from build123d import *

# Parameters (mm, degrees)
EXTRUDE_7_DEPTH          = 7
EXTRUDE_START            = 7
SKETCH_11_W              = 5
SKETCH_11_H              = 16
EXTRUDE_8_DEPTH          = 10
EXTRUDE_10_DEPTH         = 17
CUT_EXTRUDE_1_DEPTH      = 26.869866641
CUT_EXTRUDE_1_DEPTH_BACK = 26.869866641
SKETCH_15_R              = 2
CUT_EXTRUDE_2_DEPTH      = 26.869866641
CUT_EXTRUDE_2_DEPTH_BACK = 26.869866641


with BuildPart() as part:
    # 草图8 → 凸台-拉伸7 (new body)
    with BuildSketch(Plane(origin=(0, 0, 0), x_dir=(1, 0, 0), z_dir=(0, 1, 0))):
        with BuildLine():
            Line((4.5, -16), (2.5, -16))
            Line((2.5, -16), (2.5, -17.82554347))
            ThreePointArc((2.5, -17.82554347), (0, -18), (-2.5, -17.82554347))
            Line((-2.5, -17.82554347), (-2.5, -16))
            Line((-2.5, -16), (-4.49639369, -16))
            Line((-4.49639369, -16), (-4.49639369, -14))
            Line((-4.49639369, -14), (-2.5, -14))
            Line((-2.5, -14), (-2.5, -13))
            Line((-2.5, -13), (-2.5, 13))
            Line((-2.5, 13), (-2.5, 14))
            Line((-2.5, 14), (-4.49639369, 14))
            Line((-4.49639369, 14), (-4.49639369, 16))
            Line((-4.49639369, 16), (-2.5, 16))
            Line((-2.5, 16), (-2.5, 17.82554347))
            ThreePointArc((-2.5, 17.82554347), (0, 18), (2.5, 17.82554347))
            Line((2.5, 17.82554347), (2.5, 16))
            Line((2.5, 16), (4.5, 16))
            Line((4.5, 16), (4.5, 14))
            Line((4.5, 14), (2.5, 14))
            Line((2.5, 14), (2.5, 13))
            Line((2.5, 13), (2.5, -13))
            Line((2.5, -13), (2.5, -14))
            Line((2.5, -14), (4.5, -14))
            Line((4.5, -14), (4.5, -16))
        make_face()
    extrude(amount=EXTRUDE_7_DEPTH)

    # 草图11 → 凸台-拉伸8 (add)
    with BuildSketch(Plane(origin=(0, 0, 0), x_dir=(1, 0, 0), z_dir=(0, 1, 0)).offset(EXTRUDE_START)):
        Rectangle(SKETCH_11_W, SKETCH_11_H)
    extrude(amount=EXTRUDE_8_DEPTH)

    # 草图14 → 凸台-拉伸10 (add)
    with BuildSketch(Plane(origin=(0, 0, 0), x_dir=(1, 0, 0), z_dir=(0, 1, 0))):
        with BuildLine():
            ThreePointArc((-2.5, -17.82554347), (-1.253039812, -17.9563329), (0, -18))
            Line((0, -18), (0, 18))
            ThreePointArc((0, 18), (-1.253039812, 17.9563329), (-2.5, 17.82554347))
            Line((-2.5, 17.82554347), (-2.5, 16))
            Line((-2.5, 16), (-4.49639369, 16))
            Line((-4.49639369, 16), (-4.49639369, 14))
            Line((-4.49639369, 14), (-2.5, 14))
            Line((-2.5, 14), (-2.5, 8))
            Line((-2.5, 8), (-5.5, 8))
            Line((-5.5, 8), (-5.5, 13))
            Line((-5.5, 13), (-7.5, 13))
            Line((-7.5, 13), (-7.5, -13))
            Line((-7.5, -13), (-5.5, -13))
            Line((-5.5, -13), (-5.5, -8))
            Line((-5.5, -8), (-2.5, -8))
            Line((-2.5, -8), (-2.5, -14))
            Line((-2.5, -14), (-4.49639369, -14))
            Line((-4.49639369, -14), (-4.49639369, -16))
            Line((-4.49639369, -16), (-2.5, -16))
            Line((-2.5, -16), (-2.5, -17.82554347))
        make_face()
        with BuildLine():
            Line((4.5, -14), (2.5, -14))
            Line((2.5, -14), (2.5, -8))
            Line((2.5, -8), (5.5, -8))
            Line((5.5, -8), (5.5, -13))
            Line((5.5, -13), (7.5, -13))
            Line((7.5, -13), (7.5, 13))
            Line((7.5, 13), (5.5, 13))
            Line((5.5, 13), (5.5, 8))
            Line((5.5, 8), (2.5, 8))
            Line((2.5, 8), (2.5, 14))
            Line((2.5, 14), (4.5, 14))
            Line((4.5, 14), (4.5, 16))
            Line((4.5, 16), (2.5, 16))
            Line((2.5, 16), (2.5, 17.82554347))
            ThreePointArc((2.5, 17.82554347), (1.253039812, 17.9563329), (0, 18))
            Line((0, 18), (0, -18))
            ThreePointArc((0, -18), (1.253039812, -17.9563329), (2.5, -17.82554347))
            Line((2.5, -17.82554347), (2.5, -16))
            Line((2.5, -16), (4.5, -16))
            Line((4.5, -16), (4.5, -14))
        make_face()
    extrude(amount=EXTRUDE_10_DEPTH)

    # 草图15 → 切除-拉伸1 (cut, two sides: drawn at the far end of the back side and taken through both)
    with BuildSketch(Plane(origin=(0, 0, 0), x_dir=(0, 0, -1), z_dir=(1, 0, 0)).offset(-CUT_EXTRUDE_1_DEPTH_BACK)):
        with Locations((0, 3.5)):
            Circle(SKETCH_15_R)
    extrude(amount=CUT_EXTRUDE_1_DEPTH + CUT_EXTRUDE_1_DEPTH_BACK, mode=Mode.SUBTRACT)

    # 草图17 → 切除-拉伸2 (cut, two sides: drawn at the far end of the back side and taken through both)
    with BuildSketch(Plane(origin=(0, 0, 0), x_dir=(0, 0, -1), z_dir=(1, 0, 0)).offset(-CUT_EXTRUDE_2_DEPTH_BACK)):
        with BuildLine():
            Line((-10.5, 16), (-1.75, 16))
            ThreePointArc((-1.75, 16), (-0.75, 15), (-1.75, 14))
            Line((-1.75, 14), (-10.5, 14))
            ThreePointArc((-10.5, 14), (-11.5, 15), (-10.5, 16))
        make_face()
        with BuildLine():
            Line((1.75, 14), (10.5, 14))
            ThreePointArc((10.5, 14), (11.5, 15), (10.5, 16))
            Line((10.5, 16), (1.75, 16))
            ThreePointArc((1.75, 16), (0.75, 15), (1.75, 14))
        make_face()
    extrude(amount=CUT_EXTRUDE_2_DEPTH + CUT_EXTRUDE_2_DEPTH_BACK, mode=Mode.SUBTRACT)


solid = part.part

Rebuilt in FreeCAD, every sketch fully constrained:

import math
import FreeCAD as App
import Part
import Sketcher

V = App.Vector
Q = App.Units.Quantity

doc = App.newDocument("Part")
params = doc.addObject("Spreadsheet::Sheet", "Params")
for row, (alias, value) in enumerate([
    ("sketch1_radius", "18 mm"),
    ("sketch1_width", "2 mm"),
    ("sketch1_height", "28 mm"),
    ("pad1_length", "7 mm"),
    ("sketch2_width", "5 mm"),
    ("sketch2_height", "16 mm"),
    ("pad2_length", "10 mm"),
    ("sketch3_radius", "18 mm"),
    ("sketch3_width", "2 mm"),
    ("sketch3_width2", "3 mm"),
    ("sketch3_height", "6 mm"),
    ("sketch3_height2", "5 mm"),
    ("pad3_length", "17 mm"),
    ("sketch4_diameter", "4 mm"),
    ("sketch5_radius", "1 mm"),
    ("sketch5_height", "8.75 mm"),
], start=1):
    params.set(f"A{row}", alias)
    params.set(f"B{row}", "=" + value)
    params.setAlias(f"B{row}", alias)

body = doc.addObject("PartDesign::Body", "Body")

sketch1 = body.newObject("Sketcher::SketchObject", "Sketch")
sketch1.AttachmentSupport = (doc.getObject("XZ_Plane"), [""])
sketch1.MapMode = "FlatFace"
sketch1.addGeometry([
    Part.LineSegment(V(2.5, 16, 0), V(4.5, 16, 0)),
    Part.LineSegment(V(4.5, 16, 0), V(4.5, 14, 0)),
    Part.LineSegment(V(4.5, 14, 0), V(2.5, 14, 0)),
    Part.LineSegment(V(2.5, 14, 0), V(2.5, -14, 0)),
    Part.LineSegment(V(2.5, -14, 0), V(4.5, -14, 0)),
    Part.LineSegment(V(4.5, -14, 0), V(4.5, -16, 0)),
    Part.LineSegment(V(4.5, -16, 0), V(2.5, -16, 0)),
    Part.LineSegment(V(2.5, -16, 0), V(2.5, -17.825543, 0)),
    Part.ArcOfCircle(Part.Circle(V(0, 0, 0), V(0, 0, 1), 18), math.radians(-97.983556), math.radians(-82.016444)),
    Part.LineSegment(V(-2.5, -17.825543, 0), V(-2.5, -16, 0)),
    Part.LineSegment(V(-2.5, -16, 0), V(-4.496394, -16, 0)),
    Part.LineSegment(V(-4.496394, -16, 0), V(-4.496394, -14, 0)),
    Part.LineSegment(V(-4.496394, -14, 0), V(-2.5, -14, 0)),
    Part.LineSegment(V(-2.5, -14, 0), V(-2.5, 14, 0)),
    Part.LineSegment(V(-2.5, 14, 0), V(-4.496394, 14, 0)),
    Part.LineSegment(V(-4.496394, 14, 0), V(-4.496394, 16, 0)),
    Part.LineSegment(V(-4.496394, 16, 0), V(-2.5, 16, 0)),
    Part.LineSegment(V(-2.5, 16, 0), V(-2.5, 17.825543, 0)),
    Part.ArcOfCircle(Part.Circle(V(0, 0, 0), V(0, 0, 1), 18), math.radians(82.016444), math.radians(97.983556)),
    Part.LineSegment(V(2.5, 17.825543, 0), V(2.5, 16, 0)),
], False)
sketch1.addConstraint([
    Sketcher.Constraint("Coincident", 0, 2, 1, 1),
    Sketcher.Constraint("Coincident", 1, 2, 2, 1),
    Sketcher.Constraint("Coincident", 2, 2, 3, 1),
    Sketcher.Constraint("Coincident", 3, 2, 4, 1),
    Sketcher.Constraint("Coincident", 4, 2, 5, 1),
    Sketcher.Constraint("Coincident", 5, 2, 6, 1),
    Sketcher.Constraint("Coincident", 6, 2, 7, 1),
    Sketcher.Constraint("Coincident", 7, 2, 8, 2),
    Sketcher.Constraint("Coincident", 8, 1, 9, 1),
    Sketcher.Constraint("Coincident", 9, 2, 10, 1),
    Sketcher.Constraint("Coincident", 10, 2, 11, 1),
    Sketcher.Constraint("Coincident", 11, 2, 12, 1),
    Sketcher.Constraint("Coincident", 12, 2, 13, 1),
    Sketcher.Constraint("Coincident", 13, 2, 14, 1),
    Sketcher.Constraint("Coincident", 14, 2, 15, 1),
    Sketcher.Constraint("Coincident", 15, 2, 16, 1),
    Sketcher.Constraint("Coincident", 16, 2, 17, 1),
    Sketcher.Constraint("Coincident", 17, 2, 18, 2),
    Sketcher.Constraint("Coincident", 18, 1, 19, 1),
    Sketcher.Constraint("Coincident", 19, 2, 0, 1),
    Sketcher.Constraint("Horizontal", 0),
    Sketcher.Constraint("Vertical", 1),
    Sketcher.Constraint("Horizontal", 2),
    Sketcher.Constraint("Vertical", 3),
    Sketcher.Constraint("Horizontal", 4),
    Sketcher.Constraint("Vertical", 5),
    Sketcher.Constraint("Horizontal", 6),
    Sketcher.Constraint("Vertical", 7),
    Sketcher.Constraint("Vertical", 9),
    Sketcher.Constraint("Horizontal", 10),
    Sketcher.Constraint("Vertical", 11),
    Sketcher.Constraint("Horizontal", 12),
    Sketcher.Constraint("Vertical", 13),
    Sketcher.Constraint("Horizontal", 14),
    Sketcher.Constraint("Vertical", 15),
    Sketcher.Constraint("Horizontal", 16),
    Sketcher.Constraint("Vertical", 17),
    Sketcher.Constraint("Vertical", 19),
    Sketcher.Constraint("Coincident", 8, 3, -1, 1),
    Sketcher.Constraint("Coincident", 18, 3, -1, 1),
    Sketcher.Constraint("Equal", 8, 18),
    Sketcher.Constraint("Symmetric", 2, 2, 12, 2, -1, 1),
    Sketcher.Constraint("Symmetric", 6, 2, 16, 2, -1, 1),
    Sketcher.Constraint("Symmetric", 9, 2, 19, 2, -1, 1),
    Sketcher.Constraint("Symmetric", 6, 2, 9, 2, -2),
    Sketcher.Constraint("Symmetric", 1, 2, 4, 2, -1),
    Sketcher.Constraint("Symmetric", 11, 2, 14, 2, -1),
    Sketcher.Constraint("Vertical", 3, 2, 6, 2),
    Sketcher.Constraint("Equal", 6, 1),
    Sketcher.Constraint("Radius", 8, Q("18 mm")),
    Sketcher.Constraint("DistanceX", 0, 1, 0, 2, Q("2 mm")),
    Sketcher.Constraint("DistanceY", 3, 2, 3, 1, Q("28 mm")),
    Sketcher.Constraint("DistanceX", 8, 1, 7, 2, Q("5 mm")),
    Sketcher.Constraint("DistanceX", 10, 2, 10, 1, Q("1.996394 mm")),
])
sketch1.setExpression("Constraints[49]", "Params.sketch1_radius")
sketch1.setExpression("Constraints[50]", "Params.sketch1_width")
sketch1.setExpression("Constraints[51]", "Params.sketch1_height")
pad1 = body.newObject("PartDesign::Pad", "Pad")
pad1.Profile = sketch1
pad1.setExpression("Length", "Params.pad1_length")
pad1.Reversed = True

sketch2 = body.newObject("Sketcher::SketchObject", "Sketch001")
sketch2.AttachmentSupport = (doc.getObject("XZ_Plane"), [""])
sketch2.MapMode = "FlatFace"
sketch2.AttachmentOffset = App.Placement(V(0, 0, -7), App.Rotation())
sketch2.addGeometry([
    Part.LineSegment(V(-2.5, -8, 0), V(-2.5, 8, 0)),
    Part.LineSegment(V(-2.5, 8, 0), V(2.5, 8, 0)),
    Part.LineSegment(V(2.5, 8, 0), V(2.5, -8, 0)),
    Part.LineSegment(V(2.5, -8, 0), V(-2.5, -8, 0)),
], False)
sketch2.addConstraint([
    Sketcher.Constraint("Coincident", 0, 2, 1, 1),
    Sketcher.Constraint("Coincident", 1, 2, 2, 1),
    Sketcher.Constraint("Coincident", 2, 2, 3, 1),
    Sketcher.Constraint("Coincident", 3, 2, 0, 1),
    Sketcher.Constraint("Vertical", 0),
    Sketcher.Constraint("Horizontal", 1),
    Sketcher.Constraint("Vertical", 2),
    Sketcher.Constraint("Horizontal", 3),
    Sketcher.Constraint("Symmetric", 0, 2, 2, 2, -1, 1),
    Sketcher.Constraint("DistanceX", 1, 1, 1, 2, Q("5 mm")),
    Sketcher.Constraint("DistanceY", 0, 1, 0, 2, Q("16 mm")),
])
sketch2.setExpression("Constraints[9]", "Params.sketch2_width")
sketch2.setExpression("Constraints[10]", "Params.sketch2_height")
pad2 = body.newObject("PartDesign::Pad", "Pad001")
pad2.Profile = sketch2
pad2.setExpression("Length", "Params.pad2_length")
pad2.Reversed = True

sketch3 = body.newObject("Sketcher::SketchObject", "Sketch002")
sketch3.AttachmentSupport = (doc.getObject("XZ_Plane"), [""])
sketch3.MapMode = "FlatFace"
sketch3.addGeometry([
    Part.ArcOfCircle(Part.Circle(V(0, 0, 0), V(0, 0, 1), 18), math.radians(90), math.radians(97.983556)),
    Part.ArcOfCircle(Part.Circle(V(0, 0, 0), V(0, 0, 1), 18), math.radians(82.016444), math.radians(90)),
    Part.LineSegment(V(2.5, 17.825543, 0), V(2.5, 16, 0)),
    Part.LineSegment(V(2.5, 16, 0), V(4.5, 16, 0)),
    Part.LineSegment(V(4.5, 16, 0), V(4.5, 14, 0)),
    Part.LineSegment(V(4.5, 14, 0), V(2.5, 14, 0)),
    Part.LineSegment(V(2.5, 14, 0), V(2.5, 8, 0)),
    Part.LineSegment(V(2.5, 8, 0), V(5.5, 8, 0)),
    Part.LineSegment(V(5.5, 8, 0), V(5.5, 13, 0)),
    Part.LineSegment(V(5.5, 13, 0), V(7.5, 13, 0)),
    Part.LineSegment(V(7.5, 13, 0), V(7.5, -13, 0)),
    Part.LineSegment(V(7.5, -13, 0), V(5.5, -13, 0)),
    Part.LineSegment(V(5.5, -13, 0), V(5.5, -8, 0)),
    Part.LineSegment(V(5.5, -8, 0), V(2.5, -8, 0)),
    Part.LineSegment(V(2.5, -8, 0), V(2.5, -14, 0)),
    Part.LineSegment(V(2.5, -14, 0), V(4.5, -14, 0)),
    Part.LineSegment(V(4.5, -14, 0), V(4.5, -16, 0)),
    Part.LineSegment(V(4.5, -16, 0), V(2.5, -16, 0)),
    Part.LineSegment(V(2.5, -16, 0), V(2.5, -17.825543, 0)),
    Part.ArcOfCircle(Part.Circle(V(0, 0, 0), V(0, 0, 1), 18), math.radians(-90), math.radians(-82.016444)),
    Part.ArcOfCircle(Part.Circle(V(0, 0, 0), V(0, 0, 1), 18), math.radians(-97.983556), math.radians(-90)),
    Part.LineSegment(V(-2.5, -17.825543, 0), V(-2.5, -16, 0)),
    Part.LineSegment(V(-2.5, -16, 0), V(-4.496394, -16, 0)),
    Part.LineSegment(V(-4.496394, -16, 0), V(-4.496394, -14, 0)),
    Part.LineSegment(V(-4.496394, -14, 0), V(-2.5, -14, 0)),
    Part.LineSegment(V(-2.5, -14, 0), V(-2.5, -8, 0)),
    Part.LineSegment(V(-2.5, -8, 0), V(-5.5, -8, 0)),
    Part.LineSegment(V(-5.5, -8, 0), V(-5.5, -13, 0)),
    Part.LineSegment(V(-5.5, -13, 0), V(-7.5, -13, 0)),
    Part.LineSegment(V(-7.5, -13, 0), V(-7.5, 13, 0)),
    Part.LineSegment(V(-7.5, 13, 0), V(-5.5, 13, 0)),
    Part.LineSegment(V(-5.5, 13, 0), V(-5.5, 8, 0)),
    Part.LineSegment(V(-5.5, 8, 0), V(-2.5, 8, 0)),
    Part.LineSegment(V(-2.5, 8, 0), V(-2.5, 14, 0)),
    Part.LineSegment(V(-2.5, 14, 0), V(-4.496394, 14, 0)),
    Part.LineSegment(V(-4.496394, 14, 0), V(-4.496394, 16, 0)),
    Part.LineSegment(V(-4.496394, 16, 0), V(-2.5, 16, 0)),
    Part.LineSegment(V(-2.5, 16, 0), V(-2.5, 17.825543, 0)),
], False)
sketch3.addConstraint([
    Sketcher.Constraint("Tangent", 0, 1, 1, 2),
    Sketcher.Constraint("Coincident", 1, 1, 2, 1),
    Sketcher.Constraint("Coincident", 2, 2, 3, 1),
    Sketcher.Constraint("Coincident", 3, 2, 4, 1),
    Sketcher.Constraint("Coincident", 4, 2, 5, 1),
    Sketcher.Constraint("Coincident", 5, 2, 6, 1),
    Sketcher.Constraint("Coincident", 6, 2, 7, 1),
    Sketcher.Constraint("Coincident", 7, 2, 8, 1),
    Sketcher.Constraint("Coincident", 8, 2, 9, 1),
    Sketcher.Constraint("Coincident", 9, 2, 10, 1),
    Sketcher.Constraint("Coincident", 10, 2, 11, 1),
    Sketcher.Constraint("Coincident", 11, 2, 12, 1),
    Sketcher.Constraint("Coincident", 12, 2, 13, 1),
    Sketcher.Constraint("Coincident", 13, 2, 14, 1),
    Sketcher.Constraint("Coincident", 14, 2, 15, 1),
    Sketcher.Constraint("Coincident", 15, 2, 16, 1),
    Sketcher.Constraint("Coincident", 16, 2, 17, 1),
    Sketcher.Constraint("Coincident", 17, 2, 18, 1),
    Sketcher.Constraint("Coincident", 18, 2, 19, 2),
    Sketcher.Constraint("Tangent", 19, 1, 20, 2),
    Sketcher.Constraint("Coincident", 20, 1, 21, 1),
    Sketcher.Constraint("Coincident", 21, 2, 22, 1),
    Sketcher.Constraint("Coincident", 22, 2, 23, 1),
    Sketcher.Constraint("Coincident", 23, 2, 24, 1),
    Sketcher.Constraint("Coincident", 24, 2, 25, 1),
    Sketcher.Constraint("Coincident", 25, 2, 26, 1),
    Sketcher.Constraint("Coincident", 26, 2, 27, 1),
    Sketcher.Constraint("Coincident", 27, 2, 28, 1),
    Sketcher.Constraint("Coincident", 28, 2, 29, 1),
    Sketcher.Constraint("Coincident", 29, 2, 30, 1),
    Sketcher.Constraint("Coincident", 30, 2, 31, 1),
    Sketcher.Constraint("Coincident", 31, 2, 32, 1),
    Sketcher.Constraint("Coincident", 32, 2, 33, 1),
    Sketcher.Constraint("Coincident", 33, 2, 34, 1),
    Sketcher.Constraint("Coincident", 34, 2, 35, 1),
    Sketcher.Constraint("Coincident", 35, 2, 36, 1),
    Sketcher.Constraint("Coincident", 36, 2, 37, 1),
    Sketcher.Constraint("Coincident", 37, 2, 0, 2),
    Sketcher.Constraint("Vertical", 2),
    Sketcher.Constraint("Horizontal", 3),
    Sketcher.Constraint("Vertical", 4),
    Sketcher.Constraint("Horizontal", 5),
    Sketcher.Constraint("Vertical", 6),
    Sketcher.Constraint("Horizontal", 7),
    Sketcher.Constraint("Vertical", 8),
    Sketcher.Constraint("Horizontal", 9),
    Sketcher.Constraint("Vertical", 10),
    Sketcher.Constraint("Horizontal", 11),
    Sketcher.Constraint("Vertical", 12),
    Sketcher.Constraint("Horizontal", 13),
    Sketcher.Constraint("Vertical", 14),
    Sketcher.Constraint("Horizontal", 15),
    Sketcher.Constraint("Vertical", 16),
    Sketcher.Constraint("Horizontal", 17),
    Sketcher.Constraint("Vertical", 18),
    Sketcher.Constraint("Vertical", 21),
    Sketcher.Constraint("Horizontal", 22),
    Sketcher.Constraint("Vertical", 23),
    Sketcher.Constraint("Horizontal", 24),
    Sketcher.Constraint("Vertical", 25),
    Sketcher.Constraint("Horizontal", 26),
    Sketcher.Constraint("Vertical", 27),
    Sketcher.Constraint("Horizontal", 28),
    Sketcher.Constraint("Vertical", 29),
    Sketcher.Constraint("Horizontal", 30),
    Sketcher.Constraint("Vertical", 31),
    Sketcher.Constraint("Horizontal", 32),
    Sketcher.Constraint("Vertical", 33),
    Sketcher.Constraint("Horizontal", 34),
    Sketcher.Constraint("Vertical", 35),
    Sketcher.Constraint("Horizontal", 36),
    Sketcher.Constraint("Vertical", 37),
    Sketcher.Constraint("Coincident", 0, 3, -1, 1),
    Sketcher.Constraint("Coincident", 19, 3, -1, 1),
    Sketcher.Constraint("Equal", 0, 1),
    Sketcher.Constraint("Equal", 1, 19),
    Sketcher.Constraint("Equal", 19, 20),
    Sketcher.Constraint("Symmetric", 2, 2, 21, 2, -1, 1),
    Sketcher.Constraint("Symmetric", 5, 2, 24, 2, -1, 1),
    Sketcher.Constraint("Symmetric", 7, 2, 26, 2, -1, 1),
    Sketcher.Constraint("Symmetric", 9, 2, 28, 2, -1, 1),
    Sketcher.Constraint("Symmetric", 11, 2, 30, 2, -1, 1),
    Sketcher.Constraint("Symmetric", 13, 2, 32, 2, -1, 1),
    Sketcher.Constraint("Symmetric", 17, 2, 36, 2, -1, 1),
    Sketcher.Constraint("Symmetric", 17, 2, 21, 2, -2),
    Sketcher.Constraint("Symmetric", 14, 2, 24, 2, -2),
    Sketcher.Constraint("Symmetric", 12, 2, 26, 2, -2),
    Sketcher.Constraint("Symmetric", 23, 2, 34, 2, -1),
    Sketcher.Constraint("PointOnObject", 0, 1, -2),
    Sketcher.Constraint("PointOnObject", 19, 1, -2),
    Sketcher.Constraint("Horizontal", 11, 2, 27, 2),
    Sketcher.Constraint("Vertical", 2, 2, 5, 2),
    Sketcher.Constraint("Vertical", 4, 2, 15, 2),
    Sketcher.Constraint("Equal", 5, 9),
    Sketcher.Constraint("Equal", 30, 4),
    Sketcher.Constraint("Radius", 0, Q("18 mm")),
    Sketcher.Constraint("DistanceX", 3, 1, 3, 2, Q("2 mm")),
    Sketcher.Constraint("DistanceX", 7, 1, 7, 2, Q("3 mm")),
    Sketcher.Constraint("DistanceY", 6, 2, 6, 1, Q("6 mm")),
    Sketcher.Constraint("DistanceY", 8, 1, 8, 2, Q("5 mm")),
    Sketcher.Constraint("DistanceY", 10, 2, 10, 1, Q("26 mm")),
    Sketcher.Constraint("DistanceX", 20, 1, 18, 2, Q("5 mm")),
    Sketcher.Constraint("DistanceX", 22, 2, 22, 1, Q("1.996394 mm")),
])
sketch3.setExpression("Constraints[95]", "Params.sketch3_radius")
sketch3.setExpression("Constraints[96]", "Params.sketch3_width")
sketch3.setExpression("Constraints[97]", "Params.sketch3_width2")
sketch3.setExpression("Constraints[98]", "Params.sketch3_height")
sketch3.setExpression("Constraints[99]", "Params.sketch3_height2")
pad3 = body.newObject("PartDesign::Pad", "Pad002")
pad3.Profile = sketch3
pad3.setExpression("Length", "Params.pad3_length")
pad3.Reversed = True

sketch4 = body.newObject("Sketcher::SketchObject", "Sketch003")
sketch4.AttachmentSupport = (doc.getObject("YZ_Plane"), [""])
sketch4.MapMode = "FlatFace"
sketch4.addGeometry(Part.Circle(V(3.5, 0, 0), V(0, 0, 1), 2), False)
sketch4.addConstraint([
    Sketcher.Constraint("PointOnObject", 0, 3, -1),
    Sketcher.Constraint("Diameter", 0, Q("4 mm")),
    Sketcher.Constraint("DistanceX", -1, 1, 0, 3, Q("3.5 mm")),
])
sketch4.setExpression("Constraints[1]", "Params.sketch4_diameter")
pocket1 = body.newObject("PartDesign::Pocket", "Pocket")
pocket1.Profile = sketch4
pocket1.Type = "ThroughAll"
pocket1.Midplane = True

sketch5 = body.newObject("Sketcher::SketchObject", "Sketch004")
sketch5.AttachmentSupport = (doc.getObject("YZ_Plane"), [""])
sketch5.MapMode = "FlatFace"
sketch5.addGeometry([
    Part.LineSegment(V(16, 1.75, 0), V(16, 10.5, 0)),
    Part.ArcOfCircle(Part.Circle(V(15, 10.5, 0), V(0, 0, 1), 1), math.radians(0), math.radians(180)),
    Part.LineSegment(V(14, 10.5, 0), V(14, 1.75, 0)),
    Part.ArcOfCircle(Part.Circle(V(15, 1.75, 0), V(0, 0, 1), 1), math.radians(180), math.radians(360)),
    Part.LineSegment(V(14, -1.75, 0), V(14, -10.5, 0)),
    Part.ArcOfCircle(Part.Circle(V(15, -10.5, 0), V(0, 0, 1), 1), math.radians(180), math.radians(360)),
    Part.LineSegment(V(16, -10.5, 0), V(16, -1.75, 0)),
    Part.ArcOfCircle(Part.Circle(V(15, -1.75, 0), V(0, 0, 1), 1), math.radians(0), math.radians(180)),
], False)
sketch5.addConstraint([
    Sketcher.Constraint("Tangent", 0, 2, 1, 1),
    Sketcher.Constraint("Tangent", 1, 2, 2, 1),
    Sketcher.Constraint("Tangent", 2, 2, 3, 1),
    Sketcher.Constraint("Tangent", 3, 2, 0, 1),
    Sketcher.Constraint("Tangent", 4, 2, 5, 1),
    Sketcher.Constraint("Tangent", 5, 2, 6, 1),
    Sketcher.Constraint("Tangent", 6, 2, 7, 1),
    Sketcher.Constraint("Tangent", 7, 2, 4, 1),
    Sketcher.Constraint("Vertical", 0),
    Sketcher.Constraint("Vertical", 2),
    Sketcher.Constraint("Vertical", 4),
    Sketcher.Constraint("Vertical", 6),
    Sketcher.Constraint("Equal", 3, 5),
    Sketcher.Constraint("Symmetric", 1, 3, 5, 3, -1),
    Sketcher.Constraint("Equal", 2, 4),
    Sketcher.Constraint("Radius", 1, Q("1 mm")),
    Sketcher.Constraint("DistanceX", -1, 1, 1, 3, Q("15 mm")),
    Sketcher.Constraint("DistanceY", 5, 3, 1, 3, Q("21 mm")),
    Sketcher.Constraint("DistanceY", 0, 1, 0, 2, Q("8.75 mm")),
])
sketch5.setExpression("Constraints[15]", "Params.sketch5_radius")
sketch5.setExpression("Constraints[18]", "Params.sketch5_height")
pocket2 = body.newObject("PartDesign::Pocket", "Pocket001")
pocket2.Profile = sketch5
pocket2.Type = "ThroughAll"
pocket2.Midplane = True

doc.recompute()
